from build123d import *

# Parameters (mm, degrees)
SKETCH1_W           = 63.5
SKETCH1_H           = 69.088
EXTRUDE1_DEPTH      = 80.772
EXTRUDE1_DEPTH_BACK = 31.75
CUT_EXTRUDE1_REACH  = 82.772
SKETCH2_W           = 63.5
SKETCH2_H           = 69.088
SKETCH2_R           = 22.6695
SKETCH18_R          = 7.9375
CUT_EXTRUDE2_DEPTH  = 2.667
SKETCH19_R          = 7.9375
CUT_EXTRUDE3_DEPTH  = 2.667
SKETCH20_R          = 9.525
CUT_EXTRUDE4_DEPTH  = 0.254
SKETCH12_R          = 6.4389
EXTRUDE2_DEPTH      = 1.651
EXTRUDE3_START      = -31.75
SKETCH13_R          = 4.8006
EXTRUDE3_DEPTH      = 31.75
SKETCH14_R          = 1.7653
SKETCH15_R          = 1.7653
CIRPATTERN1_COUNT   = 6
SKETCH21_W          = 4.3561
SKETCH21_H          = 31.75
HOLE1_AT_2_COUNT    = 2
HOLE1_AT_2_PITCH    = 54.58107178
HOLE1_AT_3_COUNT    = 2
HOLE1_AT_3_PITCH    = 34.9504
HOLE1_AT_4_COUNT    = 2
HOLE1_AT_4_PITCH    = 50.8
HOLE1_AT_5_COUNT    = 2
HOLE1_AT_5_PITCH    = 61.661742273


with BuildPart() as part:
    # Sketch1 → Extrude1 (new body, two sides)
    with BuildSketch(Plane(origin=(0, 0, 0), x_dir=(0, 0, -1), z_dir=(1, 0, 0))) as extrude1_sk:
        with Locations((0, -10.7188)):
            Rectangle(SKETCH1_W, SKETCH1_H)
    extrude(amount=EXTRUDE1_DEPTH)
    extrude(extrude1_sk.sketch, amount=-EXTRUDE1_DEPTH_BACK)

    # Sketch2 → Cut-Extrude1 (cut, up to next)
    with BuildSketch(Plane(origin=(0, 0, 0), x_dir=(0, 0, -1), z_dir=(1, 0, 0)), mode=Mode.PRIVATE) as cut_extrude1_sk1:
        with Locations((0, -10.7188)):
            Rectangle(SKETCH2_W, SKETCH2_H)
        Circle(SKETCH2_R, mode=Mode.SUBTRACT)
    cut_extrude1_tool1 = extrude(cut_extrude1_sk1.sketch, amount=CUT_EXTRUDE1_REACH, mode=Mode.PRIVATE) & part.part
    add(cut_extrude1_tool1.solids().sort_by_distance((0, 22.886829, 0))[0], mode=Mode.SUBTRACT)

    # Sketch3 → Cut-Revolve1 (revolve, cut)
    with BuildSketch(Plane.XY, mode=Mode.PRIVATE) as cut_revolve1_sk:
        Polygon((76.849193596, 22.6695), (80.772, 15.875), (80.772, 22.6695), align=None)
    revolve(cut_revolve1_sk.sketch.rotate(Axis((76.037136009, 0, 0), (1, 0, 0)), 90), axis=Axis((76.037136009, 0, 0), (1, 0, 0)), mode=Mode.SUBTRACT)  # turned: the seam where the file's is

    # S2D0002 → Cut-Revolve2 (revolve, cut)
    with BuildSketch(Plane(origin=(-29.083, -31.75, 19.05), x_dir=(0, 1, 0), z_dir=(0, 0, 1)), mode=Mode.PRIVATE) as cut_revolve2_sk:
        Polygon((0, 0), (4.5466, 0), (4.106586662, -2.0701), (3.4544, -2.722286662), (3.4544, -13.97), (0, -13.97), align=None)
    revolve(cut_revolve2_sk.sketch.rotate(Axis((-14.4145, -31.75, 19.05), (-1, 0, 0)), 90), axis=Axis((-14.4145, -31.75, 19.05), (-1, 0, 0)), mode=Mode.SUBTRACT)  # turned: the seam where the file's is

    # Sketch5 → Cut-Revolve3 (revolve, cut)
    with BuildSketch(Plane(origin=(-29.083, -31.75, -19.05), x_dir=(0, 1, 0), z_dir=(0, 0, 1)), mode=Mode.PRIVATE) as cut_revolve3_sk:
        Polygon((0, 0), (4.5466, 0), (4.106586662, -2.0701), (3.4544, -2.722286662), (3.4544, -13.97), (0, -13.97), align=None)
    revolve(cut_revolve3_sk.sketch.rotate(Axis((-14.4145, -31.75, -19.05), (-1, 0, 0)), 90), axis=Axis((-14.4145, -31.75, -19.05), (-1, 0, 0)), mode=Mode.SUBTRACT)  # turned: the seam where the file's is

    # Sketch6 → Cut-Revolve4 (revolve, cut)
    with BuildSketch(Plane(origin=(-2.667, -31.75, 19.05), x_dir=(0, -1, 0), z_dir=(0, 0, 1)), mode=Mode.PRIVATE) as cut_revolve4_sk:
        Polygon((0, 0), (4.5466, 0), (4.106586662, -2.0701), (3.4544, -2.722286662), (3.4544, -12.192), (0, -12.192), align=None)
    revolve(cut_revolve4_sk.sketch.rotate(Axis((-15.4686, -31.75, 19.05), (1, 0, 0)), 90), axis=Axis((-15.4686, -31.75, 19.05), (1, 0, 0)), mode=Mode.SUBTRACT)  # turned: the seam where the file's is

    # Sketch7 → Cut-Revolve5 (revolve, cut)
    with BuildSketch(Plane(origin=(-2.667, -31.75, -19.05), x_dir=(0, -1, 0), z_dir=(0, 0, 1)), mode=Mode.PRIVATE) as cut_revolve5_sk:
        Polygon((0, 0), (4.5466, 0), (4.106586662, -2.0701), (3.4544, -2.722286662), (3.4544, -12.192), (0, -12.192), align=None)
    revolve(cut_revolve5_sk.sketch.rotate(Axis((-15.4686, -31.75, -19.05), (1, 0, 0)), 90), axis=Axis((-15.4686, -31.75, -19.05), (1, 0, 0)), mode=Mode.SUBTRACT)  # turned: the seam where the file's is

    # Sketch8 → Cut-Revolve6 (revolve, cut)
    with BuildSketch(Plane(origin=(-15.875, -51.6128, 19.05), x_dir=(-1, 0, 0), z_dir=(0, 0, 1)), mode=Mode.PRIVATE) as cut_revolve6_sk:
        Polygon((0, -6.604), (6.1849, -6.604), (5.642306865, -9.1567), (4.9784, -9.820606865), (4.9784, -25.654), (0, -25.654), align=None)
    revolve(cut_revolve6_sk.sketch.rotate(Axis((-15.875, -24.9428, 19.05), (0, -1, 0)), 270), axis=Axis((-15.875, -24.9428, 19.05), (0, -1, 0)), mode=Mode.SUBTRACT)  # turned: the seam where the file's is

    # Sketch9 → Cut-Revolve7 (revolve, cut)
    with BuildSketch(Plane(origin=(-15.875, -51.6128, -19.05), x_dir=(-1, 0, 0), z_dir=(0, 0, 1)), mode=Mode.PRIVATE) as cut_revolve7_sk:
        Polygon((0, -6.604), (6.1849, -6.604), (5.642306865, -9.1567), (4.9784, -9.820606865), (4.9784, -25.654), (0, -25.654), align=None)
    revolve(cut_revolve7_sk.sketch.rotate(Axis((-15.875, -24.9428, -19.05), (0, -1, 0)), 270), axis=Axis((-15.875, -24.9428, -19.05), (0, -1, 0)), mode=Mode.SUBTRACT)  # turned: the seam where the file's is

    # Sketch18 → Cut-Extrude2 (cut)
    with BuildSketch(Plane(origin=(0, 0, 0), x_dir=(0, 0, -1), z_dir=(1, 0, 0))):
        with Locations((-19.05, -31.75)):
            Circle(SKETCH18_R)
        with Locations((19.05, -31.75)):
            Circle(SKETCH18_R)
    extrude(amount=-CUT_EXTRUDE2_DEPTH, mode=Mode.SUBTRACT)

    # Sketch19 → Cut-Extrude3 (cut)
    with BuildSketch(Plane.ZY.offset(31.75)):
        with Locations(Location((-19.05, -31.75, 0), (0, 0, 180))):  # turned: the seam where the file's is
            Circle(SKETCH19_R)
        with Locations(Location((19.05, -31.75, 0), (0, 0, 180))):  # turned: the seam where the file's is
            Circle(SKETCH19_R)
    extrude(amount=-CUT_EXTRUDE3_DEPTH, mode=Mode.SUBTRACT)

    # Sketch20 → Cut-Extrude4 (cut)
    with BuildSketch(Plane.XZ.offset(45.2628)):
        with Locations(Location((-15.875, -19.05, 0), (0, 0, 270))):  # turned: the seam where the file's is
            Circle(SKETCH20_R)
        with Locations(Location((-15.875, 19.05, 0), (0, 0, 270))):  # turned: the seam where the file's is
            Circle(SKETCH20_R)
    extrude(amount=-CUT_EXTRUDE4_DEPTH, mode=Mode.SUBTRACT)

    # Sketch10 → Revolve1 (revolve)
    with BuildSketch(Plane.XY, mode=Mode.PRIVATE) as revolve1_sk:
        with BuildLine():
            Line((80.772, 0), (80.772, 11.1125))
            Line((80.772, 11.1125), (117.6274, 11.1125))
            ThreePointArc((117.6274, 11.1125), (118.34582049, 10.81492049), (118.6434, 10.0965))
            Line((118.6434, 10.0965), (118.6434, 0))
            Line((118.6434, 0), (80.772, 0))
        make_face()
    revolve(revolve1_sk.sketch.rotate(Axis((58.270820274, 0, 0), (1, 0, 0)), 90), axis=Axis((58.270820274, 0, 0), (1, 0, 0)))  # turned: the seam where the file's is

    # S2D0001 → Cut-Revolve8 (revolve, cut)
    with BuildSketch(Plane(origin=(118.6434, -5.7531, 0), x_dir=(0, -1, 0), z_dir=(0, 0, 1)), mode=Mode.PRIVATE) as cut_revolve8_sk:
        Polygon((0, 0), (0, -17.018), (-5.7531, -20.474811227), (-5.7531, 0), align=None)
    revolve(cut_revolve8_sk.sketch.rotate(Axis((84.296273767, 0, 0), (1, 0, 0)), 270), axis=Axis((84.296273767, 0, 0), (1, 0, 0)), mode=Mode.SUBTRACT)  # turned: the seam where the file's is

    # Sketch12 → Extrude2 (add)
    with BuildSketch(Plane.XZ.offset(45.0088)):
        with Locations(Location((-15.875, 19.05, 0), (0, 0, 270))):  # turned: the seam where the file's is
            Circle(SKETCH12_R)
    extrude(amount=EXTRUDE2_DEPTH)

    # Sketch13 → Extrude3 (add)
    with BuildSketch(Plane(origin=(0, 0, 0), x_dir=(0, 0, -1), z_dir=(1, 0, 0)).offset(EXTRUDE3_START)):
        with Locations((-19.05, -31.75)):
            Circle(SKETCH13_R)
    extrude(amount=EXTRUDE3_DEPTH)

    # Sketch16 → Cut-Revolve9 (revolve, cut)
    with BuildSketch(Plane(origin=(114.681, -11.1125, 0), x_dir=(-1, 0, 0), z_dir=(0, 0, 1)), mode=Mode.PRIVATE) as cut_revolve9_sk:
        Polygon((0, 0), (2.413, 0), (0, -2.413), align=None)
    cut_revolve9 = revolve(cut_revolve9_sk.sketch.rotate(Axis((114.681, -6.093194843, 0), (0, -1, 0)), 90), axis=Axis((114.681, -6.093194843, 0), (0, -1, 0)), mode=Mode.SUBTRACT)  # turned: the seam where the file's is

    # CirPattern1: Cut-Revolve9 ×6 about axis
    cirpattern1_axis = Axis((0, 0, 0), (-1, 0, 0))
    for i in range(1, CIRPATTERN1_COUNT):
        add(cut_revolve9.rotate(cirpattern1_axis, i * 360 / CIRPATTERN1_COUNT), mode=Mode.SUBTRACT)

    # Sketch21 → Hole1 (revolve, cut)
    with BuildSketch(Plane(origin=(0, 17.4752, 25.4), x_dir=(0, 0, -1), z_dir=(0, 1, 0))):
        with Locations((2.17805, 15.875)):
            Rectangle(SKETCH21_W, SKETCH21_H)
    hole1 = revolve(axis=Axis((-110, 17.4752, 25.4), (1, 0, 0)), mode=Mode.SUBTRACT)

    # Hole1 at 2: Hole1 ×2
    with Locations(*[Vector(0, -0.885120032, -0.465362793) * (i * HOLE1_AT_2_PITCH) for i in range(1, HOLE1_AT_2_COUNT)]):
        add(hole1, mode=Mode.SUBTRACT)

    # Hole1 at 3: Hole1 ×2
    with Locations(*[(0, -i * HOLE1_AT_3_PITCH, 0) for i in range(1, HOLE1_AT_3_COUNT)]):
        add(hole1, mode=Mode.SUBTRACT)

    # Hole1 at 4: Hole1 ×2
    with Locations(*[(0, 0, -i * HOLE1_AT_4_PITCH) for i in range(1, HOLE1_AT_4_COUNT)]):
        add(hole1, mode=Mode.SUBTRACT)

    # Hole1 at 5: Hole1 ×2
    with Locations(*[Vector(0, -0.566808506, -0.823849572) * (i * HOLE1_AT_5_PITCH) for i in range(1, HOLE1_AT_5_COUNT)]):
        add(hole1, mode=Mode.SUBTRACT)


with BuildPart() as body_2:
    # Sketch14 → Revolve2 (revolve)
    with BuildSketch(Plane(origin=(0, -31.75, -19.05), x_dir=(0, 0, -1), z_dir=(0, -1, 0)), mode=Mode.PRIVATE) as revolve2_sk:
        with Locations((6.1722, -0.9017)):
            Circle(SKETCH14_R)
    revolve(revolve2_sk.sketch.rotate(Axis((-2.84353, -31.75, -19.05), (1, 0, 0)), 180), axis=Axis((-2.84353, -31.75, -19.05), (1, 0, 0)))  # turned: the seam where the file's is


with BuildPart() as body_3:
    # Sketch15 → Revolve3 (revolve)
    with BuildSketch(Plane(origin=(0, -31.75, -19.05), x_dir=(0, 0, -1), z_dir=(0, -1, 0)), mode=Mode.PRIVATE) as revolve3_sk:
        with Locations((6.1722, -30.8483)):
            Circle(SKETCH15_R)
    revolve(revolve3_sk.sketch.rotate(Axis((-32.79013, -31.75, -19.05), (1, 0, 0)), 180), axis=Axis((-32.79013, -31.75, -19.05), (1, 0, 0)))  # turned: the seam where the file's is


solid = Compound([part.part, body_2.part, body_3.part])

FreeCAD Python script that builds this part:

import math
import FreeCAD as App
import Part
import Sketcher
from FreeCAD import Vector
Q = App.Units.Quantity


def add_polygon(sketch, points):
    """Adds a closed chain of lines whose ends are joined by coincident constraints."""
    first, n = sketch.GeometryCount, len(points)
    for a, b in zip(points, points[1:] + points[:1]):
        sketch.addGeometry(Part.LineSegment(App.Vector(*a, 0), App.Vector(*b, 0)), False)
    for i in range(n):
        sketch.addConstraint(Sketcher.Constraint("Coincident", first + i, 2, first + (i + 1) % n, 1))

doc = App.newDocument("Part")
body = doc.addObject("PartDesign::Body", "Body")

# Sketch on YZ plane
sketch1 = body.newObject("Sketcher::SketchObject", "Sketch")
sketch1.AttachmentSupport = (doc.getObject("YZ_Plane"), [""])
sketch1.MapMode = "FlatFace"
add_polygon(sketch1, [(24, 32), (-45, 32), (-45, -32), (24, -32)])  # lines 0-3
sketch1.addConstraint(Sketcher.Constraint("Horizontal", 0))
sketch1.addConstraint(Sketcher.Constraint("Vertical", 1))
sketch1.addConstraint(Sketcher.Constraint("Horizontal", 2))
sketch1.addConstraint(Sketcher.Constraint("Vertical", 3))
sketch1.addConstraint(Sketcher.Constraint("DistanceY", 1, 2, 1, 1, Q("2.5 in")))
sketch1.addConstraint(Sketcher.Constraint("DistanceX", 0, 2, 0, 1, Q("2.72 in")))
sketch1.addConstraint(Sketcher.Constraint("DistanceY", -1, 1, 0, 2, Q("1.25 in")))
sketch1.addConstraint(Sketcher.Constraint("DistanceX", 0, 2, -1, 1, Q("1.782 in")))
pad1 = body.newObject("PartDesign::Pad", "Pad")
pad1.Profile = sketch1
pad1.Type = "TwoLengths"
pad1.Length = Q("3.18 in")
pad1.Length2 = Q("1.25 in")

# Sketch on YZ plane
sketch2 = body.newObject("Sketcher::SketchObject", "Sketch001")
sketch2.AttachmentSupport = (doc.getObject("YZ_Plane"), [""])
sketch2.MapMode = "FlatFace"
add_polygon(sketch2, [(24, 32), (-45, 32), (-45, -32), (24, -32)])  # lines 0-3
sketch2.addGeometry(Part.Circle(Vector(0, 0, 0), Vector(0, 0, 1), 23), False)  # 4
sketch2.addConstraint(Sketcher.Constraint("Horizontal", 0))
sketch2.addConstraint(Sketcher.Constraint("Vertical", 1))
sketch2.addConstraint(Sketcher.Constraint("Horizontal", 2))
sketch2.addConstraint(Sketcher.Constraint("Vertical", 3))
sketch2.addConstraint(Sketcher.Constraint("Coincident", 4, 3, -1, 1))
sketch2.addConstraint(Sketcher.Constraint("Diameter", 4, Q("1.785 in")))
sketch2.addConstraint(Sketcher.Constraint("DistanceY", 1, 2, 1, 1, Q("2.5 in")))
sketch2.addConstraint(Sketcher.Constraint("DistanceX", 0, 2, 0, 1, Q("2.72 in")))
sketch2.addConstraint(Sketcher.Constraint("DistanceY", -1, 1, 0, 2, Q("1.25 in")))
sketch2.addConstraint(Sketcher.Constraint("DistanceX", 0, 2, -1, 1, Q("1.782 in")))
pocket1 = body.newObject("PartDesign::Pocket", "Pocket")
pocket1.Profile = sketch2
pocket1.Type = "UpToFirst"
pocket1.Reversed = True

# Sketch on XY plane
sketch3 = body.newObject("Sketcher::SketchObject", "Sketch002")
sketch3.AttachmentSupport = (doc.getObject("XY_Plane"), [""])
sketch3.MapMode = "FlatFace"
add_polygon(sketch3, [(76.8, 22.7), (80.8, 15.9), (80.8, 22.7)])  # lines 0-2
sketch3.addConstraint(Sketcher.Constraint("Vertical", 1))
sketch3.addConstraint(Sketcher.Constraint("Horizontal", 2))
sketch3.addConstraint(Sketcher.Constraint("Angle", 0, Q("-60 deg")))
sketch3.addConstraint(Sketcher.Constraint("DistanceX", -1, 1, 0, 2, Q("3.18 in")))
sketch3.addConstraint(Sketcher.Constraint("DistanceY", 1, 1, 1, 2, Q("0.2675 in")))
sketch3.addConstraint(Sketcher.Constraint("DistanceY", -1, 1, 0, 2, Q("0.625 in")))
groove = body.newObject("PartDesign::Groove", "Groove")
groove.Profile = sketch3
groove.ReferenceAxis = (sketch3, ["H_Axis"])
groove.Angle = 360

# Sketch on XY plane
sketch4 = body.newObject("Sketcher::SketchObject", "Sketch003")
sketch4.AttachmentSupport = (doc.getObject("XY_Plane"), [""])
sketch4.MapMode = "FlatFace"
sketch4.AttachmentOffset = App.Placement(Vector(0, 0, 0.75 * 25.4), App.Rotation())
add_polygon(sketch4, [(-29.1, -27.2), (-29.1, -31.8), (-15.1, -31.8), (-15.1, -28.3), (-26.4, -28.3), (-27, -27.6)])  # lines 0-5
sketch4.addGeometry(Part.LineSegment(Vector(-15.1, -31.8, 0), Vector(-29.1, -31.8, 0)), True)  # axis
sketch4.addConstraint(Sketcher.Constraint("Vertical", 0))
sketch4.addConstraint(Sketcher.Constraint("Horizontal", 1))
sketch4.addConstraint(Sketcher.Constraint("Vertical", 2))
sketch4.addConstraint(Sketcher.Constraint("Horizontal", 3))
sketch4.addConstraint(Sketcher.Constraint("Horizontal", 6))
sketch4.addConstraint(Sketcher.Constraint("Coincident", 6, 1, 1, 2))
sketch4.addConstraint(Sketcher.Constraint("Vertical", 5, 2, 6, 2))
sketch4.addConstraint(Sketcher.Constraint("Angle", 4, Q("135 deg")))
sketch4.addConstraint(Sketcher.Constraint("Angle", 5, Q("168 deg")))
sketch4.addConstraint(Sketcher.Constraint("DistanceX", 1, 1, 1, 2, Q("0.55 in")))
sketch4.addConstraint(Sketcher.Constraint("DistanceY", 0, 2, 0, 1, Q("0.179 in")))
sketch4.addConstraint(Sketcher.Constraint("DistanceY", 2, 1, 2, 2, Q("0.136 in")))
sketch4.addConstraint(Sketcher.Constraint("DistanceY", 0, 2, -1, 1, Q("1.25 in")))
sketch4.addConstraint(Sketcher.Constraint("DistanceX", 0, 2, -1, 1, Q("1.145 in")))
sketch4.addConstraint(Sketcher.Constraint("DistanceX", 4, 2, -1, 1, Q("1.0635 in")))
groove2 = body.newObject("PartDesign::Groove", "Groove001")
groove2.Profile = sketch4
groove2.ReferenceAxis = (sketch4, ["Axis0"])
groove2.Angle = 360

# Sketch on XY plane
sketch5 = body.newObject("Sketcher::SketchObject", "Sketch004")
sketch5.AttachmentSupport = (doc.getObject("XY_Plane"), [""])
sketch5.MapMode = "FlatFace"
sketch5.AttachmentOffset = App.Placement(Vector(0, 0, -0.75 * 25.4), App.Rotation())
add_polygon(sketch5, [(-29.1, -27.2), (-29.1, -31.8), (-15.1, -31.8), (-15.1, -28.3), (-26.4, -28.3), (-27, -27.6)])  # lines 0-5
sketch5.addGeometry(Part.LineSegment(Vector(-15.1, -31.8, 0), Vector(-29.1, -31.8, 0)), True)  # axis
sketch5.addConstraint(Sketcher.Constraint("Vertical", 0))
sketch5.addConstraint(Sketcher.Constraint("Horizontal", 1))
sketch5.addConstraint(Sketcher.Constraint("Vertical", 2))
sketch5.addConstraint(Sketcher.Constraint("Horizontal", 3))
sketch5.addConstraint(Sketcher.Constraint("Horizontal", 6))
sketch5.addConstraint(Sketcher.Constraint("Coincident", 6, 1, 1, 2))
sketch5.addConstraint(Sketcher.Constraint("Vertical", 5, 2, 6, 2))
sketch5.addConstraint(Sketcher.Constraint("Angle", 4, Q("135 deg")))
sketch5.addConstraint(Sketcher.Constraint("Angle", 5, Q("168 deg")))
sketch5.addConstraint(Sketcher.Constraint("DistanceX", 1, 1, 1, 2, Q("0.55 in")))
sketch5.addConstraint(Sketcher.Constraint("DistanceY", 0, 2, 0, 1, Q("0.179 in")))
sketch5.addConstraint(Sketcher.Constraint("DistanceY", 2, 1, 2, 2, Q("0.136 in")))
sketch5.addConstraint(Sketcher.Constraint("DistanceY", 0, 2, -1, 1, Q("1.25 in")))
sketch5.addConstraint(Sketcher.Constraint("DistanceX", 0, 2, -1, 1, Q("1.145 in")))
sketch5.addConstraint(Sketcher.Constraint("DistanceX", 4, 2, -1, 1, Q("1.0635 in")))
groove3 = body.newObject("PartDesign::Groove", "Groove002")
groove3.Profile = sketch5
groove3.ReferenceAxis = (sketch5, ["Axis0"])
groove3.Angle = 360

# Sketch on XY plane
sketch6 = body.newObject("Sketcher::SketchObject", "Sketch005")
sketch6.AttachmentSupport = (doc.getObject("XY_Plane"), [""])
sketch6.MapMode = "FlatFace"
sketch6.AttachmentOffset = App.Placement(Vector(0, 0, 0.75 * 25.4), App.Rotation())
add_polygon(sketch6, [(-2.7, -36.3), (-2.7, -31.8), (-14.9, -31.8), (-14.9, -35.2), (-5.4, -35.2), (-4.7, -35.9)])  # lines 0-5
sketch6.addGeometry(Part.LineSegment(Vector(-14.9, -31.8, 0), Vector(-2.7, -31.8, 0)), True)  # axis
sketch6.addConstraint(Sketcher.Constraint("Vertical", 0))
sketch6.addConstraint(Sketcher.Constraint("Horizontal", 1))
sketch6.addConstraint(Sketcher.Constraint("Vertical", 2))
sketch6.addConstraint(Sketcher.Constraint("Horizontal", 3))
sketch6.addConstraint(Sketcher.Constraint("Horizontal", 6))
sketch6.addConstraint(Sketcher.Constraint("Coincident", 6, 1, 1, 2))
sketch6.addConstraint(Sketcher.Constraint("Vertical", 5, 2, 6, 2))
sketch6.addConstraint(Sketcher.Constraint("Angle", 4, Q("-45 deg")))
sketch6.addConstraint(Sketcher.Constraint("Angle", 5, Q("-12 deg")))
sketch6.addConstraint(Sketcher.Constraint("DistanceX", 1, 2, 1, 1, Q("0.48 in")))
sketch6.addConstraint(Sketcher.Constraint("DistanceY", 0, 1, 0, 2, Q("0.179 in")))
sketch6.addConstraint(Sketcher.Constraint("DistanceY", 2, 2, 2, 1, Q("0.136 in")))
sketch6.addConstraint(Sketcher.Constraint("DistanceY", 0, 2, -1, 1, Q("1.25 in")))
sketch6.addConstraint(Sketcher.Constraint("DistanceX", 0, 2, -1, 1, Q("0.105 in")))
sketch6.addConstraint(Sketcher.Constraint("DistanceX", 4, 2, -1, 1, Q("0.1865 in")))
groove4 = body.newObject("PartDesign::Groove", "Groove003")
groove4.Profile = sketch6
groove4.ReferenceAxis = (sketch6, ["Axis0"])
groove4.Angle = 360

# Sketch on XY plane
sketch7 = body.newObject("Sketcher::SketchObject", "Sketch006")
sketch7.AttachmentSupport = (doc.getObject("XY_Plane"), [""])
sketch7.MapMode = "FlatFace"
sketch7.AttachmentOffset = App.Placement(Vector(0, 0, -0.75 * 25.4), App.Rotation())
add_polygon(sketch7, [(-2.7, -36.3), (-2.7, -31.8), (-14.9, -31.8), (-14.9, -35.2), (-5.4, -35.2), (-4.7, -35.9)])  # lines 0-5
sketch7.addGeometry(Part.LineSegment(Vector(-14.9, -31.8, 0), Vector(-2.7, -31.8, 0)), True)  # axis
sketch7.addConstraint(Sketcher.Constraint("Vertical", 0))
sketch7.addConstraint(Sketcher.Constraint("Horizontal", 1))
sketch7.addConstraint(Sketcher.Constraint("Vertical", 2))
sketch7.addConstraint(Sketcher.Constraint("Horizontal", 3))
sketch7.addConstraint(Sketcher.Constraint("Horizontal", 6))
sketch7.addConstraint(Sketcher.Constraint("Coincident", 6, 1, 1, 2))
sketch7.addConstraint(Sketcher.Constraint("Vertical", 5, 2, 6, 2))
sketch7.addConstraint(Sketcher.Constraint("Angle", 4, Q("-45 deg")))
sketch7.addConstraint(Sketcher.Constraint("Angle", 5, Q("-12 deg")))
sketch7.addConstraint(Sketcher.Constraint("DistanceX", 1, 2, 1, 1, Q("0.48 in")))
sketch7.addConstraint(Sketcher.Constraint("DistanceY", 0, 1, 0, 2, Q("0.179 in")))
sketch7.addConstraint(Sketcher.Constraint("DistanceY", 2, 2, 2, 1, Q("0.136 in")))
sketch7.addConstraint(Sketcher.Constraint("DistanceY", 0, 2, -1, 1, Q("1.25 in")))
sketch7.addConstraint(Sketcher.Constraint("DistanceX", 0, 2, -1, 1, Q("0.105 in")))
sketch7.addConstraint(Sketcher.Constraint("DistanceX", 4, 2, -1, 1, Q("0.1865 in")))
groove5 = body.newObject("PartDesign::Groove", "Groove004")
groove5.Profile = sketch7
groove5.ReferenceAxis = (sketch7, ["Axis0"])
groove5.Angle = 360

# Sketch on XY plane
sketch8 = body.newObject("Sketcher::SketchObject", "Sketch007")
sketch8.AttachmentSupport = (doc.getObject("XY_Plane"), [""])
sketch8.MapMode = "FlatFace"
sketch8.AttachmentOffset = App.Placement(Vector(0, 0, 0.75 * 25.4), App.Rotation())
add_polygon(sketch8, [(-22.1, -45), (-15.9, -45), (-15.9, -26), (-20.9, -26), (-20.9, -41.8), (-21.5, -42.5)])  # lines 0-5
sketch8.addGeometry(Part.LineSegment(Vector(-15.9, -26, 0), Vector(-15.9, -45, 0)), True)  # axis
sketch8.addConstraint(Sketcher.Constraint("Horizontal", 0))
sketch8.addConstraint(Sketcher.Constraint("Vertical", 1))
sketch8.addConstraint(Sketcher.Constraint("Horizontal", 2))
sketch8.addConstraint(Sketcher.Constraint("Vertical", 3))
sketch8.addConstraint(Sketcher.Constraint("Vertical", 6))
sketch8.addConstraint(Sketcher.Constraint("Coincident", 6, 1, 1, 2))
sketch8.addConstraint(Sketcher.Constraint("Horizontal", 5, 2, 6, 2))
sketch8.addConstraint(Sketcher.Constraint("Angle", 4, Q("-135 deg")))
sketch8.addConstraint(Sketcher.Constraint("Angle", 5, Q("-102 deg")))
sketch8.addConstraint(Sketcher.Constraint("DistanceY", 1, 1, 1, 2, Q("0.75 in")))
sketch8.addConstraint(Sketcher.Constraint("DistanceX", 2, 2, 2, 1, Q("0.196 in")))
sketch8.addConstraint(Sketcher.Constraint("DistanceX", 0, 1, 0, 2, Q("0.2435 in")))
sketch8.addConstraint(Sketcher.Constraint("DistanceX", 0, 2, -1, 1, Q("0.625 in")))
sketch8.addConstraint(Sketcher.Constraint("DistanceY", 0, 2, -1, 1, Q("1.772 in")))
sketch8.addConstraint(Sketcher.Constraint("DistanceY", 4, 2, -1, 1, Q("1.6715 in")))
groove6 = body.newObject("PartDesign::Groove", "Groove005")
groove6.Profile = sketch8
groove6.ReferenceAxis = (sketch8, ["Axis0"])
groove6.Angle = 360

# Sketch on XY plane
sketch9 = body.newObject("Sketcher::SketchObject", "Sketch008")
sketch9.AttachmentSupport = (doc.getObject("XY_Plane"), [""])
sketch9.MapMode = "FlatFace"
sketch9.AttachmentOffset = App.Placement(Vector(0, 0, -0.75 * 25.4), App.Rotation())
add_polygon(sketch9, [(-22.1, -45), (-15.9, -45), (-15.9, -26), (-20.9, -26), (-20.9, -41.8), (-21.5, -42.5)])  # lines 0-5
sketch9.addGeometry(Part.LineSegment(Vector(-15.9, -26, 0), Vector(-15.9, -45, 0)), True)  # axis
sketch9.addConstraint(Sketcher.Constraint("Horizontal", 0))
sketch9.addConstraint(Sketcher.Constraint("Vertical", 1))
sketch9.addConstraint(Sketcher.Constraint("Horizontal", 2))
sketch9.addConstraint(Sketcher.Constraint("Vertical", 3))
sketch9.addConstraint(Sketcher.Constraint("Vertical", 6))
sketch9.addConstraint(Sketcher.Constraint("Coincident", 6, 1, 1, 2))
sketch9.addConstraint(Sketcher.Constraint("Horizontal", 5, 2, 6, 2))
sketch9.addConstraint(Sketcher.Constraint("Angle", 4, Q("-135 deg")))
sketch9.addConstraint(Sketcher.Constraint("Angle", 5, Q("-102 deg")))
sketch9.addConstraint(Sketcher.Constraint("DistanceY", 1, 1, 1, 2, Q("0.75 in")))
sketch9.addConstraint(Sketcher.Constraint("DistanceX", 2, 2, 2, 1, Q("0.196 in")))
sketch9.addConstraint(Sketcher.Constraint("DistanceX", 0, 1, 0, 2, Q("0.2435 in")))
sketch9.addConstraint(Sketcher.Constraint("DistanceX", 0, 2, -1, 1, Q("0.625 in")))
sketch9.addConstraint(Sketcher.Constraint("DistanceY", 0, 2, -1, 1, Q("1.772 in")))
sketch9.addConstraint(Sketcher.Constraint("DistanceY", 4, 2, -1, 1, Q("1.6715 in")))
groove7 = body.newObject("PartDesign::Groove", "Groove006")
groove7.Profile = sketch9
groove7.ReferenceAxis = (sketch9, ["Axis0"])
groove7.Angle = 360

# Sketch on YZ plane
sketch10 = body.newObject("Sketcher::SketchObject", "Sketch009")
sketch10.AttachmentSupport = (doc.getObject("YZ_Plane"), [""])
sketch10.MapMode = "FlatFace"
sketch10.addGeometry(Part.Circle(Vector(-32, 19, 0), Vector(0, 0, 1), 8), False)
sketch10.addGeometry(Part.Circle(Vector(-32, -19, 0), Vector(0, 0, 1), 8), False)
sketch10.addConstraint(Sketcher.Constraint("Equal", 0, 1))
sketch10.addConstraint(Sketcher.Constraint("Symmetric", 0, 3, 1, 3, -1))
sketch10.addConstraint(Sketcher.Constraint("Diameter", 0, Q("0.625 in")))
sketch10.addConstraint(Sketcher.Constraint("DistanceY", 1, 3, 0, 3, Q("1.5 in")))
sketch10.addConstraint(Sketcher.Constraint("DistanceX", 0, 3, -1, 1, Q("1.25 in")))
pocket2 = body.newObject("PartDesign::Pocket", "Pocket001")
pocket2.Profile = sketch10
pocket2.Length = Q("0.105 in")

# Sketch on YZ plane
sketch11 = body.newObject("Sketcher::SketchObject", "Sketch010")
sketch11.AttachmentSupport = (doc.getObject("YZ_Plane"), [""])
sketch11.MapMode = "FlatFace"
sketch11.AttachmentOffset = App.Placement(Vector(0, 0, -1.25 * 25.4), App.Rotation())
sketch11.addGeometry(Part.Circle(Vector(-32, -19, 0), Vector(0, 0, 1), 8), False)
sketch11.addGeometry(Part.Circle(Vector(-32, 19, 0), Vector(0, 0, 1), 8), False)
sketch11.addConstraint(Sketcher.Constraint("Equal", 0, 1))
sketch11.addConstraint(Sketcher.Constraint("Symmetric", 0, 3, 1, 3, -1))
sketch11.addConstraint(Sketcher.Constraint("Diameter", 0, Q("0.625 in")))
sketch11.addConstraint(Sketcher.Constraint("DistanceY", 0, 3, 1, 3, Q("1.5 in")))
sketch11.addConstraint(Sketcher.Constraint("DistanceX", 0, 3, -1, 1, Q("1.25 in")))
pocket3 = body.newObject("PartDesign::Pocket", "Pocket002")
pocket3.Profile = sketch11
pocket3.Length = Q("0.105 in")
pocket3.Reversed = True

# Sketch on XZ plane
sketch12 = body.newObject("Sketcher::SketchObject", "Sketch011")
sketch12.AttachmentSupport = (doc.getObject("XZ_Plane"), [""])
sketch12.MapMode = "FlatFace"
sketch12.AttachmentOffset = App.Placement(Vector(0, 0, 1.782 * 25.4), App.Rotation())
sketch12.addGeometry(Part.Circle(Vector(-16, -19, 0), Vector(0, 0, 1), 10), False)
sketch12.addGeometry(Part.Circle(Vector(-16, 19, 0), Vector(0, 0, 1), 10), False)
sketch12.addConstraint(Sketcher.Constraint("Equal", 0, 1))
sketch12.addConstraint(Sketcher.Constraint("Symmetric", 0, 3, 1, 3, -1))
sketch12.addConstraint(Sketcher.Constraint("Diameter", 0, Q("0.75 in")))
sketch12.addConstraint(Sketcher.Constraint("DistanceY", 0, 3, 1, 3, Q("1.5 in")))
sketch12.addConstraint(Sketcher.Constraint("DistanceX", 0, 3, -1, 1, Q("0.625 in")))
pocket4 = body.newObject("PartDesign::Pocket", "Pocket003")
pocket4.Profile = sketch12
pocket4.Length = Q("0.01 in")

# Sketch on XY plane
sketch13 = body.newObject("Sketcher::SketchObject", "Sketch012")
sketch13.AttachmentSupport = (doc.getObject("XY_Plane"), [""])
sketch13.MapMode = "FlatFace"
sketch13.addGeometry(Part.LineSegment(Vector(80.8, 11.1, 0), Vector(80.8, 0, 0)), False)
sketch13.addGeometry(Part.LineSegment(Vector(80.8, 0, 0), Vector(118.6, 0, 0)), False)
sketch13.addGeometry(Part.LineSegment(Vector(118.6, 0, 0), Vector(118.6, 10.1, 0)), False)
sketch13.addGeometry(Part.ArcOfCircle(Part.Circle(Vector(117.6, 10.1, 0), Vector(0, 0, 1), 1), math.radians(0), math.radians(90)), False)
sketch13.addGeometry(Part.LineSegment(Vector(117.6, 11.1, 0), Vector(80.8, 11.1, 0)), False)
sketch13.addConstraint(Sketcher.Constraint("Coincident", 0, 2, 1, 1))
sketch13.addConstraint(Sketcher.Constraint("Coincident", 1, 2, 2, 1))
sketch13.addConstraint(Sketcher.Constraint("Tangent", 2, 2, 3, 1))
sketch13.addConstraint(Sketcher.Constraint("Tangent", 3, 2, 4, 1))
sketch13.addConstraint(Sketcher.Constraint("Coincident", 4, 2, 0, 1))
sketch13.addConstraint(Sketcher.Constraint("Vertical", 0))
sketch13.addConstraint(Sketcher.Constraint("Horizontal", 1))
sketch13.addConstraint(Sketcher.Constraint("Vertical", 2))
sketch13.addConstraint(Sketcher.Constraint("Horizontal", 4))
sketch13.addConstraint(Sketcher.Constraint("PointOnObject", 0, 2, -1))
sketch13.addConstraint(Sketcher.Constraint("Radius", 3, Q("0.04 in")))
sketch13.addConstraint(Sketcher.Constraint("DistanceX", 1, 1, 1, 2, Q("1.491 in")))
sketch13.addConstraint(Sketcher.Constraint("DistanceY", 0, 2, 0, 1, Q("0.4375 in")))
sketch13.addConstraint(Sketcher.Constraint("DistanceX", -1, 1, 0, 2, Q("3.18 in")))
revolution = body.newObject("PartDesign::Revolution", "Revolution")
revolution.Profile = sketch13
revolution.ReferenceAxis = (sketch13, ["H_Axis"])
revolution.Angle = 360

# Sketch on XY plane
sketch14 = body.newObject("Sketcher::SketchObject", "Sketch013")
sketch14.AttachmentSupport = (doc.getObject("XY_Plane"), [""])
sketch14.MapMode = "FlatFace"
add_polygon(sketch14, [(102, -6), (119, -6), (119, 0), (98, 0)])  # lines 0-3
sketch14.addConstraint(Sketcher.Constraint("Horizontal", 0))
sketch14.addConstraint(Sketcher.Constraint("Vertical", 1))
sketch14.addConstraint(Sketcher.Constraint("Horizontal", 2))
sketch14.addConstraint(Sketcher.Constraint("PointOnObject", 1, 2, -1))
sketch14.addConstraint(Sketcher.Constraint("Angle", 3, Q("-59 deg")))
sketch14.addConstraint(Sketcher.Constraint("DistanceX", 0, 1, 0, 2, Q("0.67 in")))
sketch14.addConstraint(Sketcher.Constraint("DistanceY", 1, 1, 1, 2, Q("0.2265 in")))
sketch14.addConstraint(Sketcher.Constraint("DistanceX", -1, 1, 0, 2, Q("4.671 in")))
groove8 = body.newObject("PartDesign::Groove", "Groove007")
groove8.Profile = sketch14
groove8.ReferenceAxis = (sketch14, ["H_Axis"])
groove8.Angle = 360

# Sketch on XZ plane
sketch15 = body.newObject("Sketcher::SketchObject", "Sketch014")
sketch15.AttachmentSupport = (doc.getObject("XZ_Plane"), [""])
sketch15.MapMode = "FlatFace"
sketch15.AttachmentOffset = App.Placement(Vector(0, 0, 1.772 * 25.4), App.Rotation())
sketch15.addGeometry(Part.Circle(Vector(-16, 19, 0), Vector(0, 0, 1), 6), False)
sketch15.addConstraint(Sketcher.Constraint("Diameter", 0, Q("0.507 in")))
sketch15.addConstraint(Sketcher.Constraint("DistanceY", -1, 1, 0, 3, Q("0.75 in")))
sketch15.addConstraint(Sketcher.Constraint("DistanceX", 0, 3, -1, 1, Q("0.625 in")))
pad2 = body.newObject("PartDesign::Pad", "Pad001")
pad2.Profile = sketch15
pad2.Length = Q("0.065 in")

# Sketch on YZ plane
sketch16 = body.newObject("Sketcher::SketchObject", "Sketch015")
sketch16.AttachmentSupport = (doc.getObject("YZ_Plane"), [""])
sketch16.MapMode = "FlatFace"
sketch16.AttachmentOffset = App.Placement(Vector(0, 0, -1.25 * 25.4), App.Rotation())
sketch16.addGeometry(Part.Circle(Vector(-31.8, 19.1, 0), Vector(0, 0, 1), 4.8), False)
sketch16.addConstraint(Sketcher.Constraint("Diameter", 0, Q("0.378 in")))
sketch16.addConstraint(Sketcher.Constraint("DistanceX", 0, 3, -1, 1, Q("1.25 in")))
sketch16.addConstraint(Sketcher.Constraint("DistanceY", -1, 1, 0, 3, Q("0.75 in")))
pad3 = body.newObject("PartDesign::Pad", "Pad002")
pad3.Profile = sketch16
pad3.Length = Q("1.25 in")

# Sketch on XY plane
sketch17 = body.newObject("Sketcher::SketchObject", "Sketch016")
sketch17.AttachmentSupport = (doc.getObject("XY_Plane"), [""])
sketch17.MapMode = "FlatFace"
add_polygon(sketch17, [(112.3, -11.1), (114.7, -11.1), (114.7, -8.7)])  # lines 0-2
sketch17.addGeometry(Part.LineSegment(Vector(114.7, -8.7, 0), Vector(114.7, -11.1, 0)), True)  # axis
sketch17.addConstraint(Sketcher.Constraint("Horizontal", 0))
sketch17.addConstraint(Sketcher.Constraint("Vertical", 1))
sketch17.addConstraint(Sketcher.Constraint("Vertical", 3))
sketch17.addConstraint(Sketcher.Constraint("Coincident", 3, 1, 1, 2))
sketch17.addConstraint(Sketcher.Constraint("Horizontal", 2, 2, 3, 2))
sketch17.addConstraint(Sketcher.Constraint("Equal", 0, 1))
sketch17.addConstraint(Sketcher.Constraint("DistanceX", 0, 1, 0, 2, Q("0.095 in")))
sketch17.addConstraint(Sketcher.Constraint("DistanceX", -1, 1, 2, 2, Q("4.42 in")))
sketch17.addConstraint(Sketcher.Constraint("DistanceY", 0, 2, -1, 1, Q("0.4375 in")))
groove9 = body.newObject("PartDesign::Groove", "Groove008")
groove9.Profile = sketch17
groove9.ReferenceAxis = (sketch17, ["Axis0"])
groove9.Angle = 360
doc.recompute()

polarpattern = body.newObject("PartDesign::PolarPattern", "PolarPattern")
polarpattern.Originals = [groove9]
polarpattern.Axis = (doc.getObject("X_Axis"), [""])
polarpattern.Angle = 360
polarpattern.Occurrences = 6
body.Tip = polarpattern

# Sketch on XZ plane
sketch18 = body.newObject("Sketcher::SketchObject", "Sketch017")
sketch18.AttachmentSupport = (doc.getObject("XZ_Plane"), [""])
sketch18.MapMode = "FlatFace"
sketch18.AttachmentOffset = App.Placement(Vector(0, 0, -0.688 * 25.4), App.Rotation())
add_polygon(sketch18, [(-31.8, 25.4), (0, 25.4), (0, 21), (-31.8, 21)])  # lines 0-3
sketch18.addGeometry(Part.LineSegment(Vector(-31.8, 25.4, 0), Vector(0, 25.4, 0)), True)  # axis
sketch18.addConstraint(Sketcher.Constraint("Horizontal", 0))
sketch18.addConstraint(Sketcher.Constraint("Vertical", 1))
sketch18.addConstraint(Sketcher.Constraint("Horizontal", 2))
sketch18.addConstraint(Sketcher.Constraint("Vertical", 3))
sketch18.addConstraint(Sketcher.Constraint("Horizontal", 4))
sketch18.addConstraint(Sketcher.Constraint("Coincident", 4, 1, 3, 2))
sketch18.addConstraint(Sketcher.Constraint("PointOnObject", 0, 2, -2))
sketch18.addConstraint(Sketcher.Constraint("PointOnObject", 4, 2, -2))
sketch18.addConstraint(Sketcher.Constraint("DistanceY", -1, 1, 0, 2, Q("1 in")))
sketch18.addConstraint(Sketcher.Constraint("DistanceX", 0, 1, 0, 2, Q("1.25 in")))
sketch18.addConstraint(Sketcher.Constraint("DistanceY", 1, 2, 1, 1, Q("0.1715 in")))
groove10 = body.newObject("PartDesign::Groove", "Groove009")
groove10.Profile = sketch18
groove10.ReferenceAxis = (sketch18, ["Axis0"])
groove10.Angle = 360
doc.recompute()

datumline = body.newObject("PartDesign::Line", "DatumLine")
datumline.Placement = App.Placement(Vector(0, 0, 0), App.Rotation(Vector(0, 0, 1), Vector(0, -0.885120032, -0.465362793)))
linearpattern = body.newObject("PartDesign::LinearPattern", "LinearPattern")
linearpattern.Originals = [groove10]
linearpattern.Direction = (datumline, [""])
linearpattern.Mode = "offset"
linearpattern.Offset = 54.581072
linearpattern.Occurrences = 2
body.Tip = linearpattern
doc.recompute()

linearpattern2 = body.newObject("PartDesign::LinearPattern", "LinearPattern001")
linearpattern2.Originals = [groove10]
linearpattern2.Direction = (doc.getObject("Y_Axis"), [""])
linearpattern2.Mode = "offset"
linearpattern2.Offset = Q("1.376 in")
linearpattern2.Occurrences = 2
linearpattern2.Reversed = True
body.Tip = linearpattern2
doc.recompute()

linearpattern3 = body.newObject("PartDesign::LinearPattern", "LinearPattern002")
linearpattern3.Originals = [groove10]
linearpattern3.Direction = (doc.getObject("Z_Axis"), [""])
linearpattern3.Mode = "offset"
linearpattern3.Offset = Q("2 in")
linearpattern3.Occurrences = 2
linearpattern3.Reversed = True
body.Tip = linearpattern3
doc.recompute()

datumline2 = body.newObject("PartDesign::Line", "DatumLine001")
datumline2.Placement = App.Placement(Vector(0, 0, 0), App.Rotation(Vector(0, 0, 1), Vector(0, -0.566808506, -0.823849572)))
linearpattern4 = body.newObject("PartDesign::LinearPattern", "LinearPattern003")
linearpattern4.Originals = [groove10]
linearpattern4.Direction = (datumline2, [""])
linearpattern4.Mode = "offset"
linearpattern4.Offset = 61.661742
linearpattern4.Occurrences = 2
body.Tip = linearpattern4
body2 = doc.addObject("PartDesign::Body", "Body001")

# Sketch on XZ plane
sketch19 = body2.newObject("Sketcher::SketchObject", "Sketch018")
sketch19.AttachmentSupport = (doc.getObject("XZ_Plane001"), [""])
sketch19.MapMode = "FlatFace"
sketch19.AttachmentOffset = App.Placement(Vector(0, 0, 1.25 * 25.4), App.Rotation())
sketch19.addGeometry(Part.Circle(Vector(-0.9, -25.2, 0), Vector(0, 0, 1), 1.8), False)
sketch19.addGeometry(Part.LineSegment(Vector(-0.9, -19.1, 0), Vector(9.1, -19.1, 0)), True)  # axis
sketch19.addConstraint(Sketcher.Constraint("Horizontal", 1))
sketch19.addConstraint(Sketcher.Constraint("Vertical", 0, 3, 1, 1))
sketch19.addConstraint(Sketcher.Constraint("Diameter", 0, Q("0.139 in")))
sketch19.addConstraint(Sketcher.Constraint("DistanceY", 1, 1, -1, 1, Q("0.75 in")))
sketch19.addConstraint(Sketcher.Constraint("DistanceY", 0, 3, -1, 1, Q("0.993 in")))
sketch19.addConstraint(Sketcher.Constraint("DistanceX", 1, 1, 1, 2, 10.0))
sketch19.addConstraint(Sketcher.Constraint("DistanceX", 0, 3, -1, 1, Q("0.0355 in")))
revolution2 = body2.newObject("PartDesign::Revolution", "Revolution001")
revolution2.Profile = sketch19
revolution2.ReferenceAxis = (sketch19, ["Axis0"])
revolution2.Angle = 360
body3 = doc.addObject("PartDesign::Body", "Body002")

# Sketch on XZ plane
sketch20 = body3.newObject("Sketcher::SketchObject", "Sketch019")
sketch20.AttachmentSupport = (doc.getObject("XZ_Plane002"), [""])
sketch20.MapMode = "FlatFace"
sketch20.AttachmentOffset = App.Placement(Vector(0, 0, 1.25 * 25.4), App.Rotation())
sketch20.addGeometry(Part.Circle(Vector(-30.8, -25.2, 0), Vector(0, 0, 1), 1.8), False)
sketch20.addGeometry(Part.LineSegment(Vector(-30.8, -19.1, 0), Vector(-20.8, -19.1, 0)), True)  # axis
sketch20.addConstraint(Sketcher.Constraint("Horizontal", 1))
sketch20.addConstraint(Sketcher.Constraint("Vertical", 0, 3, 1, 1))
sketch20.addConstraint(Sketcher.Constraint("Diameter", 0, Q("0.139 in")))
sketch20.addConstraint(Sketcher.Constraint("DistanceY", 1, 1, -1, 1, Q("0.75 in")))
sketch20.addConstraint(Sketcher.Constraint("DistanceY", 0, 3, -1, 1, Q("0.993 in")))
sketch20.addConstraint(Sketcher.Constraint("DistanceX", 1, 1, 1, 2, 10.0))
sketch20.addConstraint(Sketcher.Constraint("DistanceX", 0, 3, -1, 1, Q("1.2145 in")))
revolution3 = body3.newObject("PartDesign::Revolution", "Revolution002")
revolution3.Profile = sketch20
revolution3.ReferenceAxis = (sketch20, ["Axis0"])
revolution3.Angle = 360

doc.recompute()
